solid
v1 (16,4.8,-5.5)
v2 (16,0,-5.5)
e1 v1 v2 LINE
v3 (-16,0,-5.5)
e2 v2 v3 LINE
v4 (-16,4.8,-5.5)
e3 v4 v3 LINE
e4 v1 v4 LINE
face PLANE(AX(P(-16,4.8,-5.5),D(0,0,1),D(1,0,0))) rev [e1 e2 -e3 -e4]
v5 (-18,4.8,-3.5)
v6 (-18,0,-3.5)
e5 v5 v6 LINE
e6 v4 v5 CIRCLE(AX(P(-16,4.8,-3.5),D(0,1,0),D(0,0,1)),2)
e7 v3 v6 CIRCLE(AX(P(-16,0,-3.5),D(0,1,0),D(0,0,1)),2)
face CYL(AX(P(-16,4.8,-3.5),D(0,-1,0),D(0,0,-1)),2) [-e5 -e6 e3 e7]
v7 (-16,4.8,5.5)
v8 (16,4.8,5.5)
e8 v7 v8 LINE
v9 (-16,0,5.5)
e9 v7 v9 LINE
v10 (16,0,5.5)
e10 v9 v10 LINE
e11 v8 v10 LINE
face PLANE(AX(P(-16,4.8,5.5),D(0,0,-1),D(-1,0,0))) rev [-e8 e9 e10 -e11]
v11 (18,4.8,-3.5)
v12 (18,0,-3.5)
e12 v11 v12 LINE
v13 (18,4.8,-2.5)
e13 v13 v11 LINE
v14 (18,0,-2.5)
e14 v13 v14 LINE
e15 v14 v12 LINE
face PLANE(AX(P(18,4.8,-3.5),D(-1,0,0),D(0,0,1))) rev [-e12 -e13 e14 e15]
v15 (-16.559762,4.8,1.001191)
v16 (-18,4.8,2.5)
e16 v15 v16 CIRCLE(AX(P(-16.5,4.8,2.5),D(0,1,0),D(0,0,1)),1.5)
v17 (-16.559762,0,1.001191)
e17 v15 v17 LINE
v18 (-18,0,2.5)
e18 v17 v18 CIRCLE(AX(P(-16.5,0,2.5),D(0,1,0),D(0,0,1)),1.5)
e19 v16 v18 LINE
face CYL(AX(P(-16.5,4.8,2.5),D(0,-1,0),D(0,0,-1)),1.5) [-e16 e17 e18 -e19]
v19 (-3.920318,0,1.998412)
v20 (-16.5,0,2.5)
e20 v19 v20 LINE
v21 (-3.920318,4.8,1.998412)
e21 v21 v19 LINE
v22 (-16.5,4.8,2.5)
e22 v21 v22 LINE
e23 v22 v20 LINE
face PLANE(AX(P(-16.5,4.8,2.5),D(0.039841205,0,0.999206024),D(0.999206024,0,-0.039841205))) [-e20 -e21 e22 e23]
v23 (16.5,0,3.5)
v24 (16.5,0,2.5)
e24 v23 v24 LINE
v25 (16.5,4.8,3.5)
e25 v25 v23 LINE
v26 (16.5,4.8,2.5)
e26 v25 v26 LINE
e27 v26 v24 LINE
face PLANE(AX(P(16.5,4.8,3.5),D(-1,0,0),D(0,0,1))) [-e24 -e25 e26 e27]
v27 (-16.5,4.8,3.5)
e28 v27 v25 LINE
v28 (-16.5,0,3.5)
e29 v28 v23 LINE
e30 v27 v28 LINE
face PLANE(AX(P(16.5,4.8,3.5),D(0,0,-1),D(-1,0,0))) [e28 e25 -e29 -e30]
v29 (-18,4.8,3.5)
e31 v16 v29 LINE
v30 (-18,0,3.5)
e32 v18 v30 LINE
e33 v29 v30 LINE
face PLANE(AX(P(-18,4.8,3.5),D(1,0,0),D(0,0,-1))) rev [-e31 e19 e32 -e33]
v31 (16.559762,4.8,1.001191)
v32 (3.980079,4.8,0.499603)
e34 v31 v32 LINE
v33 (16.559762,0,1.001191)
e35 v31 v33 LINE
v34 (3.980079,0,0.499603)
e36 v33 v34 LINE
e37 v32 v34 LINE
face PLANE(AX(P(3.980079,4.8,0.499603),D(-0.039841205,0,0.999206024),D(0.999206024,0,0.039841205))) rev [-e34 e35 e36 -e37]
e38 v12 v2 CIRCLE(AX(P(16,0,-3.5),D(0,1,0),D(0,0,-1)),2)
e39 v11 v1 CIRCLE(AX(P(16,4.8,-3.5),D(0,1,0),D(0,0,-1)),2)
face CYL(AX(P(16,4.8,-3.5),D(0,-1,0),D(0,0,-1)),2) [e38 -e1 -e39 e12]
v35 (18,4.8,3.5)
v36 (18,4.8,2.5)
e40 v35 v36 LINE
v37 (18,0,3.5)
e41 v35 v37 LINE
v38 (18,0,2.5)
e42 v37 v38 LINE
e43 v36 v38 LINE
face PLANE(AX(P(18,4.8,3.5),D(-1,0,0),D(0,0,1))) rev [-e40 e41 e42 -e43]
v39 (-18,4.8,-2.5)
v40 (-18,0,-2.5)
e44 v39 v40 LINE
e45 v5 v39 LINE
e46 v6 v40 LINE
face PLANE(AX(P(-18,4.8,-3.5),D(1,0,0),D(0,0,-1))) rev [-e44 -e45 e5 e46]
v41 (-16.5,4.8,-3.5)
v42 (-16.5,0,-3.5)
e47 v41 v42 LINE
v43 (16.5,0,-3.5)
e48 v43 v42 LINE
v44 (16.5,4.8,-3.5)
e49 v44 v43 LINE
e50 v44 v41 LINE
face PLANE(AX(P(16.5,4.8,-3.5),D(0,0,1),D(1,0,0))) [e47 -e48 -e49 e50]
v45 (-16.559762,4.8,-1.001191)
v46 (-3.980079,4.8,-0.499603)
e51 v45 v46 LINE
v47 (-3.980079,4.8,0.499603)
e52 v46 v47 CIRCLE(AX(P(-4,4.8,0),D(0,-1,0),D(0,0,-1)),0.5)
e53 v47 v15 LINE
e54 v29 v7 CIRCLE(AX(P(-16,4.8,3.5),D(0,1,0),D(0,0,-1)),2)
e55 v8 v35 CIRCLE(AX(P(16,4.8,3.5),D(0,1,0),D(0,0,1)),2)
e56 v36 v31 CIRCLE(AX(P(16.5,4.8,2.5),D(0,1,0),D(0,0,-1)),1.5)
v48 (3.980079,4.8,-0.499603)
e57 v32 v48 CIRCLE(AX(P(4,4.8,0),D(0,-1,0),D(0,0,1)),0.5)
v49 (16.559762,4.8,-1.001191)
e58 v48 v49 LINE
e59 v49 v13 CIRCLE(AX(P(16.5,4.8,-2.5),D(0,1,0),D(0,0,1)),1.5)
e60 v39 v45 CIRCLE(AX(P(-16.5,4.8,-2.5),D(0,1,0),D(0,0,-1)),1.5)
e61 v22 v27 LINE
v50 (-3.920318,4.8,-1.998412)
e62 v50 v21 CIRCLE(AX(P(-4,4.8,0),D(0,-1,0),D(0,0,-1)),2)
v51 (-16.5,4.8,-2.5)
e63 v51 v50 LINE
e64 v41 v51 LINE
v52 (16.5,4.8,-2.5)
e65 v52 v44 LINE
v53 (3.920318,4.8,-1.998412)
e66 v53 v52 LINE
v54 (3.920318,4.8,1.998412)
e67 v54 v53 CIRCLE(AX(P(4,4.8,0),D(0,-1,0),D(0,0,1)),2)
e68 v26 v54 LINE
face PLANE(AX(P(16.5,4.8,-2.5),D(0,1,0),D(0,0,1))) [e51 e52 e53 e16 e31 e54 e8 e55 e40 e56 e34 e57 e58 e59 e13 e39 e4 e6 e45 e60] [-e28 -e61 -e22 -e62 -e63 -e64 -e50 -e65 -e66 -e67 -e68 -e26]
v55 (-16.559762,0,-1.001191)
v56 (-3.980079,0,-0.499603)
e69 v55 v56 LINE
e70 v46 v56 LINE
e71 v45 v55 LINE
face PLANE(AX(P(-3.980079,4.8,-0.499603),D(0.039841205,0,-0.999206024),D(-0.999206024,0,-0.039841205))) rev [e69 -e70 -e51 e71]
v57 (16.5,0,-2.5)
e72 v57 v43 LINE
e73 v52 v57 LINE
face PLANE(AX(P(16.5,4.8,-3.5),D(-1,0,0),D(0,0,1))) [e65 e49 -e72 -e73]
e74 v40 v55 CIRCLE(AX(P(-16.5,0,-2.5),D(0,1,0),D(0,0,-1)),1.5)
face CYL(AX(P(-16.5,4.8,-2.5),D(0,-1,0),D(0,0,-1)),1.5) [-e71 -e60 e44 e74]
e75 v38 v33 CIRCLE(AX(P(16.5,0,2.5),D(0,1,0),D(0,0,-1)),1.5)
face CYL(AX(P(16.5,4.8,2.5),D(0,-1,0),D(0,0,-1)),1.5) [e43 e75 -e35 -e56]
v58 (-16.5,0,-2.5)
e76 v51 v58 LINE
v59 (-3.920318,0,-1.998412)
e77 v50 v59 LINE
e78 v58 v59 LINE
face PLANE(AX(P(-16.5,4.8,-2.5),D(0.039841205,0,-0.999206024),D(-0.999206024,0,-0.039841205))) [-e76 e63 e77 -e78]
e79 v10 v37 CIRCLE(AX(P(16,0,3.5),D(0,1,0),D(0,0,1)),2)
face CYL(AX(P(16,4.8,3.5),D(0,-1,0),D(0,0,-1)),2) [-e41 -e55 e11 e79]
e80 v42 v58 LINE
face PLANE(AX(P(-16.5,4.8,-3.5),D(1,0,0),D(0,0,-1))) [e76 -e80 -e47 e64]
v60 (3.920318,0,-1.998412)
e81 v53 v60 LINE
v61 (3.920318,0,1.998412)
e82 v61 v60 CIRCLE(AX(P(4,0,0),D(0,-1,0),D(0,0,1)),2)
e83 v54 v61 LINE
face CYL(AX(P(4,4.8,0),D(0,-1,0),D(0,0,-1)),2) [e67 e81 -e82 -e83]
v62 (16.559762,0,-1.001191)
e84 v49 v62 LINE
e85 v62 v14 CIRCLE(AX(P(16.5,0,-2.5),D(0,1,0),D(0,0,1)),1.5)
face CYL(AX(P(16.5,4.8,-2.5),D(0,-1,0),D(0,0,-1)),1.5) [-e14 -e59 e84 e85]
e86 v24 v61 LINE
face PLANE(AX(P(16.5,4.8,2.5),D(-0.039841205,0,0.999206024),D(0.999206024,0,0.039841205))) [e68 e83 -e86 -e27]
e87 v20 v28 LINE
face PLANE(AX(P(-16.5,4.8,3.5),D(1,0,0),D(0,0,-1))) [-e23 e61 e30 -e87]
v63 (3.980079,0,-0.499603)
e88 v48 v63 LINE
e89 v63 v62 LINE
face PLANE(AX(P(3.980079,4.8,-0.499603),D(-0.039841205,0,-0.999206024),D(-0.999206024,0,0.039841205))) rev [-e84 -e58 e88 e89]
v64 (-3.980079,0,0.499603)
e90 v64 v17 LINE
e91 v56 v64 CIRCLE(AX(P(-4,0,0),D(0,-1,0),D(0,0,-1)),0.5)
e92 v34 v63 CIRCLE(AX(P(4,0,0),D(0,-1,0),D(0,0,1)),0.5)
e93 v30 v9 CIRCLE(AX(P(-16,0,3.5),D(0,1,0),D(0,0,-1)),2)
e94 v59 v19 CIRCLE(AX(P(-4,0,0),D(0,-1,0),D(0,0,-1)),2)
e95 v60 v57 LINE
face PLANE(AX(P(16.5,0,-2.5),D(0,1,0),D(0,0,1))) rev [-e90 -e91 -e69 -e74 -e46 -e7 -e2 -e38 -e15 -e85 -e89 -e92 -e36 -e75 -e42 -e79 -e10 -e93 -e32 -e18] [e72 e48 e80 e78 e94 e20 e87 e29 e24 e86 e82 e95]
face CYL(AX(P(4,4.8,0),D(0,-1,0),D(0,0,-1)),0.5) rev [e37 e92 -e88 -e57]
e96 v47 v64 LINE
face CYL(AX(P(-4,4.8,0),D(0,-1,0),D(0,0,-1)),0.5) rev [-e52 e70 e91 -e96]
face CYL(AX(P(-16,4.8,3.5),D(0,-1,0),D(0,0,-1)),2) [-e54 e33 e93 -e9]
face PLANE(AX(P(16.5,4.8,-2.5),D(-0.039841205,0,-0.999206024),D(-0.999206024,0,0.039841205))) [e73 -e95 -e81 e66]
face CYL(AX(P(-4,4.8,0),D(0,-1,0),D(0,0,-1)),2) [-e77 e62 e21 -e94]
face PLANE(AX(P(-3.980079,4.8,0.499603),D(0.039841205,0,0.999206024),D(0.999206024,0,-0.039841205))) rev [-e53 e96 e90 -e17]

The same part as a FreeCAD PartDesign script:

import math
import FreeCAD as App
import Part
import Sketcher

V = App.Vector

doc = App.newDocument("Part")
body = doc.addObject("PartDesign::Body", "Body")

# Sketch on XZ plane
sketch1 = body.newObject("Sketcher::SketchObject", "Sketch")
sketch1.AttachmentSupport = (doc.getObject("XZ_Plane"), [""])
sketch1.MapMode = "FlatFace"
sketch1.addGeometry(Part.LineSegment(V(18, -2.5, 0), V(18, -3.5, 0)), False)
sketch1.addGeometry(Part.ArcOfCircle(Part.Circle(V(16, -3.5, 0), V(0, 0, 1), 2), math.radians(-90), math.radians(0)), False)
sketch1.addGeometry(Part.LineSegment(V(16, -5.5, 0), V(-16, -5.5, 0)), False)
sketch1.addGeometry(Part.ArcOfCircle(Part.Circle(V(-16, -3.5, 0), V(0, 0, 1), 2), math.radians(-180), math.radians(-90)), False)
sketch1.addGeometry(Part.LineSegment(V(-18, -3.5, 0), V(-18, -2.5, 0)), False)
sketch1.addGeometry(Part.ArcOfCircle(Part.Circle(V(-16.5, -2.5, 0), V(0, 0, 1), 1.5), math.radians(92.283337), math.radians(180)), False)
sketch1.addGeometry(Part.LineSegment(V(-16.559762, -1.001191, 0), V(-3.980079, -0.499603, 0)), False)
sketch1.addGeometry(Part.ArcOfCircle(Part.Circle(V(-4, 0, 0), V(0, 0, 1), 0.5), math.radians(-87.716663), math.radians(87.716663)), False)
sketch1.addGeometry(Part.LineSegment(V(-3.980079, 0.499603, 0), V(-16.559762, 1.001191, 0)), False)
sketch1.addGeometry(Part.ArcOfCircle(Part.Circle(V(-16.5, 2.5, 0), V(0, 0, 1), 1.5), math.radians(-180), math.radians(-92.283337)), False)
sketch1.addGeometry(Part.LineSegment(V(-18, 2.5, 0), V(-18, 3.5, 0)), False)
sketch1.addGeometry(Part.ArcOfCircle(Part.Circle(V(-16, 3.5, 0), V(0, 0, 1), 2), math.radians(90), math.radians(180)), False)
sketch1.addGeometry(Part.LineSegment(V(-16, 5.5, 0), V(16, 5.5, 0)), False)
sketch1.addGeometry(Part.ArcOfCircle(Part.Circle(V(16, 3.5, 0), V(0, 0, 1), 2), math.radians(0), math.radians(90)), False)
sketch1.addGeometry(Part.LineSegment(V(18, 3.5, 0), V(18, 2.5, 0)), False)
sketch1.addGeometry(Part.ArcOfCircle(Part.Circle(V(16.5, 2.5, 0), V(0, 0, 1), 1.5), math.radians(-87.716663), math.radians(0)), False)
sketch1.addGeometry(Part.LineSegment(V(16.559762, 1.001191, 0), V(3.980079, 0.499603, 0)), False)
sketch1.addGeometry(Part.ArcOfCircle(Part.Circle(V(4, 0, 0), V(0, 0, 1), 0.5), math.radians(92.283337), math.radians(267.716663)), False)
sketch1.addGeometry(Part.LineSegment(V(3.980079, -0.499603, 0), V(16.559762, -1.001191, 0)), False)
sketch1.addGeometry(Part.ArcOfCircle(Part.Circle(V(16.5, -2.5, 0), V(0, 0, 1), 1.5), math.radians(0), math.radians(87.716663)), False)
sketch1.addGeometry(Part.LineSegment(V(16.5, -3.5, 0), V(16.5, -2.5, 0)), False)
sketch1.addGeometry(Part.LineSegment(V(16.5, -2.5, 0), V(3.920318, -1.998412, 0)), False)
sketch1.addGeometry(Part.ArcOfCircle(Part.Circle(V(4, 0, 0), V(0, 0, 1), 2), math.radians(92.283337), math.radians(267.716663)), False)
sketch1.addGeometry(Part.LineSegment(V(3.920318, 1.998412, 0), V(16.5, 2.5, 0)), False)
sketch1.addGeometry(Part.LineSegment(V(16.5, 2.5, 0), V(16.5, 3.5, 0)), False)
sketch1.addGeometry(Part.LineSegment(V(16.5, 3.5, 0), V(-16.5, 3.5, 0)), False)
sketch1.addGeometry(Part.LineSegment(V(-16.5, 3.5, 0), V(-16.5, 2.5, 0)), False)
sketch1.addGeometry(Part.LineSegment(V(-16.5, 2.5, 0), V(-3.920318, 1.998412, 0)), False)
sketch1.addGeometry(Part.ArcOfCircle(Part.Circle(V(-4, 0, 0), V(0, 0, 1), 2), math.radians(-87.716663), math.radians(87.716663)), False)
sketch1.addGeometry(Part.LineSegment(V(-3.920318, -1.998412, 0), V(-16.5, -2.5, 0)), False)
sketch1.addGeometry(Part.LineSegment(V(-16.5, -2.5, 0), V(-16.5, -3.5, 0)), False)
sketch1.addGeometry(Part.LineSegment(V(-16.5, -3.5, 0), V(16.5, -3.5, 0)), False)
sketch1.addConstraint(Sketcher.Constraint("Tangent", 0, 2, 1, 2))
sketch1.addConstraint(Sketcher.Constraint("Tangent", 1, 1, 2, 1))
sketch1.addConstraint(Sketcher.Constraint("Tangent", 2, 2, 3, 2))
sketch1.addConstraint(Sketcher.Constraint("Tangent", 3, 1, 4, 1))
sketch1.addConstraint(Sketcher.Constraint("Tangent", 4, 2, 5, 2))
sketch1.addConstraint(Sketcher.Constraint("Tangent", 5, 1, 6, 1))
sketch1.addConstraint(Sketcher.Constraint("Tangent", 6, 2, 7, 1))
sketch1.addConstraint(Sketcher.Constraint("Tangent", 7, 2, 8, 1))
sketch1.addConstraint(Sketcher.Constraint("Tangent", 8, 2, 9, 2))
sketch1.addConstraint(Sketcher.Constraint("Tangent", 9, 1, 10, 1))
sketch1.addConstraint(Sketcher.Constraint("Tangent", 10, 2, 11, 2))
sketch1.addConstraint(Sketcher.Constraint("Tangent", 11, 1, 12, 1))
sketch1.addConstraint(Sketcher.Constraint("Tangent", 12, 2, 13, 2))
sketch1.addConstraint(Sketcher.Constraint("Tangent", 13, 1, 14, 1))
sketch1.addConstraint(Sketcher.Constraint("Tangent", 14, 2, 15, 2))
sketch1.addConstraint(Sketcher.Constraint("Tangent", 15, 1, 16, 1))
sketch1.addConstraint(Sketcher.Constraint("Tangent", 16, 2, 17, 1))
sketch1.addConstraint(Sketcher.Constraint("Tangent", 17, 2, 18, 1))
sketch1.addConstraint(Sketcher.Constraint("Tangent", 18, 2, 19, 2))
sketch1.addConstraint(Sketcher.Constraint("Tangent", 19, 1, 0, 1))
sketch1.addConstraint(Sketcher.Constraint("Coincident", 20, 2, 21, 1))
sketch1.addConstraint(Sketcher.Constraint("Tangent", 21, 2, 22, 2))
sketch1.addConstraint(Sketcher.Constraint("Tangent", 22, 1, 23, 1))
sketch1.addConstraint(Sketcher.Constraint("Coincident", 23, 2, 24, 1))
sketch1.addConstraint(Sketcher.Constraint("Coincident", 24, 2, 25, 1))
sketch1.addConstraint(Sketcher.Constraint("Coincident", 25, 2, 26, 1))
sketch1.addConstraint(Sketcher.Constraint("Coincident", 26, 2, 27, 1))
sketch1.addConstraint(Sketcher.Constraint("Tangent", 27, 2, 28, 2))
sketch1.addConstraint(Sketcher.Constraint("Tangent", 28, 1, 29, 1))
sketch1.addConstraint(Sketcher.Constraint("Coincident", 29, 2, 30, 1))
sketch1.addConstraint(Sketcher.Constraint("Coincident", 30, 2, 31, 1))
sketch1.addConstraint(Sketcher.Constraint("Coincident", 31, 2, 20, 1))
sketch1.addConstraint(Sketcher.Constraint("Vertical", 0))
sketch1.addConstraint(Sketcher.Constraint("Horizontal", 2))
sketch1.addConstraint(Sketcher.Constraint("Vertical", 4))
sketch1.addConstraint(Sketcher.Constraint("Vertical", 10))
sketch1.addConstraint(Sketcher.Constraint("Horizontal", 12))
sketch1.addConstraint(Sketcher.Constraint("Vertical", 14))
sketch1.addConstraint(Sketcher.Constraint("Vertical", 20))
sketch1.addConstraint(Sketcher.Constraint("Vertical", 24))
sketch1.addConstraint(Sketcher.Constraint("Horizontal", 25))
sketch1.addConstraint(Sketcher.Constraint("Vertical", 26))
sketch1.addConstraint(Sketcher.Constraint("Vertical", 30))
sketch1.addConstraint(Sketcher.Constraint("Horizontal", 31))
sketch1.addConstraint(Sketcher.Constraint("Coincident", 22, 3, 17, 3))
sketch1.addConstraint(Sketcher.Constraint("Coincident", 28, 3, 7, 3))
sketch1.addConstraint(Sketcher.Constraint("Coincident", 20, 2, 19, 3))
sketch1.addConstraint(Sketcher.Constraint("Coincident", 23, 2, 15, 3))
sketch1.addConstraint(Sketcher.Constraint("Coincident", 26, 2, 9, 3))
sketch1.addConstraint(Sketcher.Constraint("Coincident", 29, 2, 5, 3))
sketch1.addConstraint(Sketcher.Constraint("Equal", 1, 3))
sketch1.addConstraint(Sketcher.Constraint("Equal", 5, 9))
sketch1.addConstraint(Sketcher.Constraint("Equal", 3, 11))
sketch1.addConstraint(Sketcher.Constraint("Equal", 11, 13))
sketch1.addConstraint(Sketcher.Constraint("Equal", 9, 15))
sketch1.addConstraint(Sketcher.Constraint("Equal", 7, 17))
sketch1.addConstraint(Sketcher.Constraint("Equal", 15, 19))
sketch1.addConstraint(Sketcher.Constraint("Equal", 13, 22))
sketch1.addConstraint(Sketcher.Constraint("Equal", 22, 28))
sketch1.addConstraint(Sketcher.Constraint("Symmetric", 1, 3, 11, 3, -1, 1))
sketch1.addConstraint(Sketcher.Constraint("Symmetric", 5, 3, 15, 3, -1, 1))
sketch1.addConstraint(Sketcher.Constraint("Symmetric", 7, 3, 17, 3, -1, 1))
sketch1.addConstraint(Sketcher.Constraint("Symmetric", 9, 3, 15, 3, -2))
sketch1.addConstraint(Sketcher.Constraint("Symmetric", 6, 2, 17, 2, -2))
sketch1.addConstraint(Sketcher.Constraint("Parallel", 18, 21))
sketch1.addConstraint(Sketcher.Constraint("Horizontal", 13, 1, 24, 2))
sketch1.addConstraint(Sketcher.Constraint("Horizontal", 3, 1, 30, 2))
sketch1.addConstraint(Sketcher.Constraint("Radius", 1, 2.0))
sketch1.addConstraint(Sketcher.Constraint("Radius", 5, 1.5))
sketch1.addConstraint(Sketcher.Constraint("DistanceX", 2, 2, 2, 1, 32.0))
sketch1.addConstraint(Sketcher.Constraint("DistanceY", 0, 2, 0, 1, 1.0))
sketch1.addConstraint(Sketcher.Constraint("DistanceX", 7, 3, -1, 1, 4.0))
sketch1.addConstraint(Sketcher.Constraint("DistanceY", 5, 3, 9, 3, 5.0))
pad1 = body.newObject("PartDesign::Pad", "Pad")
pad1.Profile = sketch1
pad1.Length = 4.8
pad1.Reversed = True

doc.recompute()
